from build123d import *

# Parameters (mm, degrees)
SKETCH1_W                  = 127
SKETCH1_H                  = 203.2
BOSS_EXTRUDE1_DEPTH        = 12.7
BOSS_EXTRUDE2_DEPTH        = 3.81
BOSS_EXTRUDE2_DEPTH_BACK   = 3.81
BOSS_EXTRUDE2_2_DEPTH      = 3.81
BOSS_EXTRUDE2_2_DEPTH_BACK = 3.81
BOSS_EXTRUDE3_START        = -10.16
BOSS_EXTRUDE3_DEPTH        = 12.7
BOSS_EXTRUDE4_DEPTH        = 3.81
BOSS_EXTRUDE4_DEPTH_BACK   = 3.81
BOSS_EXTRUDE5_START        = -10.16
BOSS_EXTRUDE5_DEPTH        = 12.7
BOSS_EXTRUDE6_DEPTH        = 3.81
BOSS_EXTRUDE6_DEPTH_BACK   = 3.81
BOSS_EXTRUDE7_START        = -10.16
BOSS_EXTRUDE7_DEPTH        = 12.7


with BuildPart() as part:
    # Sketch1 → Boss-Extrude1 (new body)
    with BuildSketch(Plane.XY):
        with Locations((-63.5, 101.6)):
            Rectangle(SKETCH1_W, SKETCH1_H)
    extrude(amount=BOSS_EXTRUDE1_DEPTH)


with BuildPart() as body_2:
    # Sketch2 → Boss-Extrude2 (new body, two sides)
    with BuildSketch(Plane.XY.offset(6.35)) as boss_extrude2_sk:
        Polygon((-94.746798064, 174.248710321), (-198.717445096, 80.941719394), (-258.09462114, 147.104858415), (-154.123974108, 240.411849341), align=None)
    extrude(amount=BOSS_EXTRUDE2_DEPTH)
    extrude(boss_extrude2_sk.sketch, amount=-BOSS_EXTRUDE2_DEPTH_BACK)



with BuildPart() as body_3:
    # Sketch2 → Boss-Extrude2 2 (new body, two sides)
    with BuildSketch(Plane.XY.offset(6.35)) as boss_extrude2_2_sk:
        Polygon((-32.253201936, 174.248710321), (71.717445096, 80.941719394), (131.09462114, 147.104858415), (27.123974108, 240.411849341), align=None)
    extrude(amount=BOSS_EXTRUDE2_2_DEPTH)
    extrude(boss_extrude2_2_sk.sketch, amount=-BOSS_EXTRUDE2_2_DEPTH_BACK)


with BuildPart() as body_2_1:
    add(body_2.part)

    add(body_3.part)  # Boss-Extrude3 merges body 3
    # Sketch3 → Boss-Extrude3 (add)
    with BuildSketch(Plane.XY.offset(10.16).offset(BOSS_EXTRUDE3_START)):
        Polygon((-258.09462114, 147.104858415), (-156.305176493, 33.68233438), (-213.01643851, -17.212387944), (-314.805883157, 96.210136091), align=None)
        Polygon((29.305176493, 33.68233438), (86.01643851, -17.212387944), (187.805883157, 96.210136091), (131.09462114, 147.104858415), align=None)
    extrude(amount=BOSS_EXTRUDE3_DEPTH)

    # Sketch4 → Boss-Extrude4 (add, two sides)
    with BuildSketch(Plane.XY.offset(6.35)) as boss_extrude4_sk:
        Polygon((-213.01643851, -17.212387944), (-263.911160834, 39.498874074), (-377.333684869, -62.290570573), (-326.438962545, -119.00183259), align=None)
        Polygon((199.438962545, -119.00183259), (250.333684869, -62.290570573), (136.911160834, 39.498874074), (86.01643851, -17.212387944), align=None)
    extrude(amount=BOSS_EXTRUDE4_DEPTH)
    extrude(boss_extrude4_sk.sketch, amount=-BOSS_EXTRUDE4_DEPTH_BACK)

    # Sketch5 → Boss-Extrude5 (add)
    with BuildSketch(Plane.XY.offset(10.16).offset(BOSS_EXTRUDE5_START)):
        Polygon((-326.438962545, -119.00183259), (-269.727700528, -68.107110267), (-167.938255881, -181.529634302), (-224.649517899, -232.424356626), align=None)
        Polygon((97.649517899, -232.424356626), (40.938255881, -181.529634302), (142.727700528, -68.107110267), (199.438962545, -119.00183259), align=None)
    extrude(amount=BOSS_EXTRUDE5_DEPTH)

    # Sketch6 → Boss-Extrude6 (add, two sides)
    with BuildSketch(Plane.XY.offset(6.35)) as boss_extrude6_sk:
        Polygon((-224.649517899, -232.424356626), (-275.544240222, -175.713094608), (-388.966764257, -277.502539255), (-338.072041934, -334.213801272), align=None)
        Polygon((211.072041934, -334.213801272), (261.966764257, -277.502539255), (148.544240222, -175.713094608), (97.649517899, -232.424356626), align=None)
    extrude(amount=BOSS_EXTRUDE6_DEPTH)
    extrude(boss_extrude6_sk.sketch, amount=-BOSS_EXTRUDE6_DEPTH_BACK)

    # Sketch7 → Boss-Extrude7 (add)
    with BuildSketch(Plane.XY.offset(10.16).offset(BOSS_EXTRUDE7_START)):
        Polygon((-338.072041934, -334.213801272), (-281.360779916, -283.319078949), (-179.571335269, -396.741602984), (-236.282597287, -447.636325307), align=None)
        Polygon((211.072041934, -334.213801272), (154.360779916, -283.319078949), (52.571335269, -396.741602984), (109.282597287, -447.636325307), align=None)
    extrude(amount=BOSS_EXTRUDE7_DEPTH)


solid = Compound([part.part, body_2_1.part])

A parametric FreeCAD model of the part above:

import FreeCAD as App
import Part
import Sketcher
Q = App.Units.Quantity

doc = App.newDocument("Part")
body = doc.addObject("PartDesign::Body", "Body")

sketch1 = body.newObject("Sketcher::SketchObject", "Sketch")
sketch1.AttachmentSupport = (doc.getObject("XY_Plane"), [""])
sketch1.MapMode = "FlatFace"
sketch1.addGeometry(Part.LineSegment(App.Vector(-127, 203, 0), App.Vector(-127, 0, 0)), False)
sketch1.addGeometry(Part.LineSegment(App.Vector(-127, 0, 0), App.Vector(0, 0, 0)), False)
sketch1.addGeometry(Part.LineSegment(App.Vector(0, 0, 0), App.Vector(0, 203, 0)), False)
sketch1.addGeometry(Part.LineSegment(App.Vector(0, 203, 0), App.Vector(-127, 203, 0)), False)
sketch1.addConstraint(Sketcher.Constraint("Coincident", 0, 2, 1, 1))
sketch1.addConstraint(Sketcher.Constraint("Coincident", 1, 2, 2, 1))
sketch1.addConstraint(Sketcher.Constraint("Coincident", 2, 2, 3, 1))
sketch1.addConstraint(Sketcher.Constraint("Coincident", 3, 2, 0, 1))
sketch1.addConstraint(Sketcher.Constraint("Vertical", 0))
sketch1.addConstraint(Sketcher.Constraint("Horizontal", 1))
sketch1.addConstraint(Sketcher.Constraint("Vertical", 2))
sketch1.addConstraint(Sketcher.Constraint("Horizontal", 3))
sketch1.addConstraint(Sketcher.Constraint("Coincident", 1, 2, -1, 1))
sketch1.addConstraint(Sketcher.Constraint("DistanceX", 1, 1, 1, 2, Q("5 in")))
sketch1.addConstraint(Sketcher.Constraint("DistanceY", 0, 2, 0, 1, Q("8 in")))
pad1 = body.newObject("PartDesign::Pad", "Pad")
pad1.Profile = sketch1
pad1.Length = Q("0.5 in")
body2 = doc.addObject("PartDesign::Body", "Body001")

sketch2 = body2.newObject("Sketcher::SketchObject", "Sketch001")
sketch2.AttachmentSupport = (doc.getObject("XY_Plane001"), [""])
sketch2.MapMode = "FlatFace"
sketch2.AttachmentOffset = App.Placement(App.Vector(0, 0, 0.25 * 25.4), App.Rotation())
sketch2.addGeometry(Part.LineSegment(App.Vector(-199, 81, 0), App.Vector(-95, 174, 0)), False)
sketch2.addGeometry(Part.LineSegment(App.Vector(-95, 174, 0), App.Vector(-154, 240, 0)), False)
sketch2.addGeometry(Part.LineSegment(App.Vector(-154, 240, 0), App.Vector(-258, 147, 0)), False)
sketch2.addGeometry(Part.LineSegment(App.Vector(-258, 147, 0), App.Vector(-199, 81, 0)), False)
sketch2.addConstraint(Sketcher.Constraint("Coincident", 0, 2, 1, 1))
sketch2.addConstraint(Sketcher.Constraint("Coincident", 1, 2, 2, 1))
sketch2.addConstraint(Sketcher.Constraint("Coincident", 2, 2, 3, 1))
sketch2.addConstraint(Sketcher.Constraint("Coincident", 3, 2, 0, 1))
sketch2.addConstraint(Sketcher.Constraint("Perpendicular", 0, 1))
sketch2.addConstraint(Sketcher.Constraint("Perpendicular", 1, 2))
sketch2.addConstraint(Sketcher.Constraint("Perpendicular", 2, 3))
sketch2.addConstraint(Sketcher.Constraint("Distance", 0, Q("5.5 in")))
sketch2.addConstraint(Sketcher.Constraint("Distance", 1, Q("3.5 in")))
sketch2.addConstraint(Sketcher.Constraint("DistanceX", 0, 2, -1, 1, Q("94.746798 mm")))
sketch2.addConstraint(Sketcher.Constraint("DistanceY", -1, 1, 0, 2, Q("174.24871 mm")))
sketch2.addConstraint(Sketcher.Constraint("DistanceY", -1, 1, 1, 2, Q("240.411849 mm")))
pad2 = body2.newObject("PartDesign::Pad", "Pad001")
pad2.Profile = sketch2
pad2.Type = "TwoLengths"
pad2.Length = Q("0.15 in")
pad2.Length2 = Q("0.15 in")
body3 = doc.addObject("PartDesign::Body", "Body002")

sketch3 = body3.newObject("Sketcher::SketchObject", "Sketch002")
sketch3.AttachmentSupport = (doc.getObject("XY_Plane002"), [""])
sketch3.MapMode = "FlatFace"
sketch3.AttachmentOffset = App.Placement(App.Vector(0, 0, 0.25 * 25.4), App.Rotation())
sketch3.addGeometry(Part.LineSegment(App.Vector(-32, 174, 0), App.Vector(72, 81, 0)), False)
sketch3.addGeometry(Part.LineSegment(App.Vector(72, 81, 0), App.Vector(131, 147, 0)), False)
sketch3.addGeometry(Part.LineSegment(App.Vector(131, 147, 0), App.Vector(27, 240, 0)), False)
sketch3.addGeometry(Part.LineSegment(App.Vector(27, 240, 0), App.Vector(-32, 174, 0)), False)
sketch3.addConstraint(Sketcher.Constraint("Coincident", 0, 2, 1, 1))
sketch3.addConstraint(Sketcher.Constraint("Coincident", 1, 2, 2, 1))
sketch3.addConstraint(Sketcher.Constraint("Coincident", 2, 2, 3, 1))
sketch3.addConstraint(Sketcher.Constraint("Coincident", 3, 2, 0, 1))
sketch3.addConstraint(Sketcher.Constraint("Perpendicular", 0, 1))
sketch3.addConstraint(Sketcher.Constraint("Perpendicular", 1, 2))
sketch3.addConstraint(Sketcher.Constraint("Perpendicular", 2, 3))
sketch3.addConstraint(Sketcher.Constraint("Distance", 0, Q("5.5 in")))
sketch3.addConstraint(Sketcher.Constraint("Distance", 1, Q("3.5 in")))
sketch3.addConstraint(Sketcher.Constraint("DistanceX", 3, 2, -1, 1, Q("32.253202 mm")))
sketch3.addConstraint(Sketcher.Constraint("DistanceY", -1, 1, 0, 2, Q("80.941719 mm")))
sketch3.addConstraint(Sketcher.Constraint("DistanceX", -1, 1, 1, 2, Q("131.094621 mm")))
pad3 = body3.newObject("PartDesign::Pad", "Pad002")
pad3.Profile = sketch3
pad3.Type = "TwoLengths"
pad3.Length = Q("0.15 in")
pad3.Length2 = Q("0.15 in")
body2.AllowCompound = True
doc.recompute()

boolean = body2.newObject("PartDesign::Boolean", "Boolean")
boolean.Type = "Fuse"
boolean.addObjects([body3])

sketch4 = body2.newObject("Sketcher::SketchObject", "Sketch003")
sketch4.AttachmentSupport = (doc.getObject("XY_Plane001"), [""])
sketch4.MapMode = "FlatFace"
sketch4.addGeometry(Part.LineSegment(App.Vector(-156, 34, 0), App.Vector(-258, 147, 0)), False)
sketch4.addGeometry(Part.LineSegment(App.Vector(-258, 147, 0), App.Vector(-315, 96, 0)), False)
sketch4.addGeometry(Part.LineSegment(App.Vector(-315, 96, 0), App.Vector(-213, -17, 0)), False)
sketch4.addGeometry(Part.LineSegment(App.Vector(-213, -17, 0), App.Vector(-156, 34, 0)), False)
sketch4.addGeometry(Part.LineSegment(App.Vector(29, 34, 0), App.Vector(86, -17, 0)), False)
sketch4.addGeometry(Part.LineSegment(App.Vector(86, -17, 0), App.Vector(188, 96, 0)), False)
sketch4.addGeometry(Part.LineSegment(App.Vector(188, 96, 0), App.Vector(131, 147, 0)), False)
sketch4.addGeometry(Part.LineSegment(App.Vector(131, 147, 0), App.Vector(29, 34, 0)), False)
sketch4.addConstraint(Sketcher.Constraint("Coincident", 0, 2, 1, 1))
sketch4.addConstraint(Sketcher.Constraint("Coincident", 1, 2, 2, 1))
sketch4.addConstraint(Sketcher.Constraint("Coincident", 2, 2, 3, 1))
sketch4.addConstraint(Sketcher.Constraint("Coincident", 3, 2, 0, 1))
sketch4.addConstraint(Sketcher.Constraint("Coincident", 4, 2, 5, 1))
sketch4.addConstraint(Sketcher.Constraint("Coincident", 5, 2, 6, 1))
sketch4.addConstraint(Sketcher.Constraint("Coincident", 6, 2, 7, 1))
sketch4.addConstraint(Sketcher.Constraint("Coincident", 7, 2, 4, 1))
sketch4.addConstraint(Sketcher.Constraint("Perpendicular", 0, 1))
sketch4.addConstraint(Sketcher.Constraint("Perpendicular", 1, 2))
sketch4.addConstraint(Sketcher.Constraint("Perpendicular", 2, 3))
sketch4.addConstraint(Sketcher.Constraint("Perpendicular", 4, 5))
sketch4.addConstraint(Sketcher.Constraint("Perpendicular", 5, 6))
sketch4.addConstraint(Sketcher.Constraint("Perpendicular", 6, 7))
sketch4.addConstraint(Sketcher.Constraint("Horizontal", 2, 2, 4, 2))
sketch4.addConstraint(Sketcher.Constraint("Horizontal", 1, 2, 5, 2))
sketch4.addConstraint(Sketcher.Constraint("Horizontal", 0, 2, 6, 2))
sketch4.addConstraint(Sketcher.Constraint("Equal", 3, 4))
sketch4.addConstraint(Sketcher.Constraint("Distance", 0, Q("6 in")))
sketch4.addConstraint(Sketcher.Constraint("Distance", 1, Q("3 in")))
sketch4.addConstraint(Sketcher.Constraint("DistanceY", 3, 2, 1, 2, Q("62.527802 mm")))
sketch4.addConstraint(Sketcher.Constraint("DistanceX", 0, 2, -1, 1, Q("258.094621 mm")))
sketch4.addConstraint(Sketcher.Constraint("DistanceY", -1, 1, 0, 2, Q("147.104858 mm")))
sketch4.addConstraint(Sketcher.Constraint("DistanceX", -1, 1, 4, 2, Q("86.016439 mm")))
pad4 = body2.newObject("PartDesign::Pad", "Pad003")
pad4.Profile = sketch4
pad4.Length = Q("0.5 in")

sketch5 = body2.newObject("Sketcher::SketchObject", "Sketch004")
sketch5.AttachmentSupport = (doc.getObject("XY_Plane001"), [""])
sketch5.MapMode = "FlatFace"
sketch5.AttachmentOffset = App.Placement(App.Vector(0, 0, 0.25 * 25.4), App.Rotation())
sketch5.addGeometry(Part.LineSegment(App.Vector(-213, -17, 0), App.Vector(-264, 39, 0)), False)
sketch5.addGeometry(Part.LineSegment(App.Vector(-264, 39, 0), App.Vector(-377, -62, 0)), False)
sketch5.addGeometry(Part.LineSegment(App.Vector(-377, -62, 0), App.Vector(-326, -119, 0)), False)
sketch5.addGeometry(Part.LineSegment(App.Vector(-326, -119, 0), App.Vector(-213, -17, 0)), False)
sketch5.addGeometry(Part.LineSegment(App.Vector(199, -119, 0), App.Vector(250, -62, 0)), False)
sketch5.addGeometry(Part.LineSegment(App.Vector(250, -62, 0), App.Vector(137, 39, 0)), False)
sketch5.addGeometry(Part.LineSegment(App.Vector(137, 39, 0), App.Vector(86, -17, 0)), False)
sketch5.addGeometry(Part.LineSegment(App.Vector(86, -17, 0), App.Vector(199, -119, 0)), False)
sketch5.addConstraint(Sketcher.Constraint("Coincident", 0, 2, 1, 1))
sketch5.addConstraint(Sketcher.Constraint("Coincident", 1, 2, 2, 1))
sketch5.addConstraint(Sketcher.Constraint("Coincident", 2, 2, 3, 1))
sketch5.addConstraint(Sketcher.Constraint("Coincident", 3, 2, 0, 1))
sketch5.addConstraint(Sketcher.Constraint("Coincident", 4, 2, 5, 1))
sketch5.addConstraint(Sketcher.Constraint("Coincident", 5, 2, 6, 1))
sketch5.addConstraint(Sketcher.Constraint("Coincident", 6, 2, 7, 1))
sketch5.addConstraint(Sketcher.Constraint("Coincident", 7, 2, 4, 1))
sketch5.addConstraint(Sketcher.Constraint("Perpendicular", 0, 1))
sketch5.addConstraint(Sketcher.Constraint("Perpendicular", 1, 2))
sketch5.addConstraint(Sketcher.Constraint("Perpendicular", 2, 3))
sketch5.addConstraint(Sketcher.Constraint("Perpendicular", 4, 5))
sketch5.addConstraint(Sketcher.Constraint("Perpendicular", 5, 6))
sketch5.addConstraint(Sketcher.Constraint("Perpendicular", 6, 7))
sketch5.addConstraint(Sketcher.Constraint("Horizontal", 1, 2, 4, 2))
sketch5.addConstraint(Sketcher.Constraint("Horizontal", 0, 2, 5, 2))
sketch5.addConstraint(Sketcher.Constraint("Horizontal", 3, 2, 6, 2))
sketch5.addConstraint(Sketcher.Constraint("Equal", 2, 4))
sketch5.addConstraint(Sketcher.Constraint("Distance", 0, Q("3 in")))
sketch5.addConstraint(Sketcher.Constraint("Distance", 1, Q("6 in")))
sketch5.addConstraint(Sketcher.Constraint("DistanceX", 2, 2, 0, 2, Q("62.527802 mm")))
sketch5.addConstraint(Sketcher.Constraint("DistanceX", 3, 2, 5, 2, Q("349.927599 mm")))
sketch5.addConstraint(Sketcher.Constraint("DistanceX", 0, 2, -1, 1, Q("263.911161 mm")))
sketch5.addConstraint(Sketcher.Constraint("DistanceY", 1, 2, -1, 1, Q("62.290571 mm")))
pad5 = body2.newObject("PartDesign::Pad", "Pad004")
pad5.Profile = sketch5
pad5.Type = "TwoLengths"
pad5.Length = Q("0.15 in")
pad5.Length2 = Q("0.15 in")

sketch6 = body2.newObject("Sketcher::SketchObject", "Sketch005")
sketch6.AttachmentSupport = (doc.getObject("XY_Plane001"), [""])
sketch6.MapMode = "FlatFace"
sketch6.addGeometry(Part.LineSegment(App.Vector(-270, -68, 0), App.Vector(-326, -119, 0)), False)
sketch6.addGeometry(Part.LineSegment(App.Vector(-326, -119, 0), App.Vector(-225, -232, 0)), False)
sketch6.addGeometry(Part.LineSegment(App.Vector(-225, -232, 0), App.Vector(-168, -182, 0)), False)
sketch6.addGeometry(Part.LineSegment(App.Vector(-168, -182, 0), App.Vector(-270, -68, 0)), False)
sketch6.addGeometry(Part.LineSegment(App.Vector(41, -182, 0), App.Vector(98, -232, 0)), False)
sketch6.addGeometry(Part.LineSegment(App.Vector(98, -232, 0), App.Vector(199, -119, 0)), False)
sketch6.addGeometry(Part.LineSegment(App.Vector(199, -119, 0), App.Vector(143, -68, 0)), False)
sketch6.addGeometry(Part.LineSegment(App.Vector(143, -68, 0), App.Vector(41, -182, 0)), False)
sketch6.addConstraint(Sketcher.Constraint("Coincident", 0, 2, 1, 1))
sketch6.addConstraint(Sketcher.Constraint("Coincident", 1, 2, 2, 1))
sketch6.addConstraint(Sketcher.Constraint("Coincident", 2, 2, 3, 1))
sketch6.addConstraint(Sketcher.Constraint("Coincident", 3, 2, 0, 1))
sketch6.addConstraint(Sketcher.Constraint("Coincident", 4, 2, 5, 1))
sketch6.addConstraint(Sketcher.Constraint("Coincident", 5, 2, 6, 1))
sketch6.addConstraint(Sketcher.Constraint("Coincident", 6, 2, 7, 1))
sketch6.addConstraint(Sketcher.Constraint("Coincident", 7, 2, 4, 1))
sketch6.addConstraint(Sketcher.Constraint("Perpendicular", 0, 1))
sketch6.addConstraint(Sketcher.Constraint("Perpendicular", 1, 2))
sketch6.addConstraint(Sketcher.Constraint("Perpendicular", 2, 3))
sketch6.addConstraint(Sketcher.Constraint("Perpendicular", 4, 5))
sketch6.addConstraint(Sketcher.Constraint("Perpendicular", 5, 6))
sketch6.addConstraint(Sketcher.Constraint("Perpendicular", 6, 7))
sketch6.addConstraint(Sketcher.Constraint("Horizontal", 1, 2, 4, 2))
sketch6.addConstraint(Sketcher.Constraint("Horizontal", 0, 2, 5, 2))
sketch6.addConstraint(Sketcher.Constraint("Horizontal", 3, 2, 6, 2))
sketch6.addConstraint(Sketcher.Constraint("Equal", 2, 4))
sketch6.addConstraint(Sketcher.Constraint("Distance", 0, Q("3 in")))
sketch6.addConstraint(Sketcher.Constraint("Distance", 1, Q("6 in")))
sketch6.addConstraint(Sketcher.Constraint("DistanceX", 3, 2, -1, 1, Q("269.727701 mm")))
sketch6.addConstraint(Sketcher.Constraint("DistanceX", -1, 1, 6, 2, Q("142.727701 mm")))
sketch6.addConstraint(Sketcher.Constraint("DistanceY", 2, 2, 0, 2, Q("62.527802 mm")))
sketch6.addConstraint(Sketcher.Constraint("DistanceY", 3, 2, -1, 1, Q("68.10711 mm")))
pad6 = body2.newObject("PartDesign::Pad", "Pad005")
pad6.Profile = sketch6
pad6.Length = Q("0.5 in")

sketch7 = body2.newObject("Sketcher::SketchObject", "Sketch006")
sketch7.AttachmentSupport = (doc.getObject("XY_Plane001"), [""])
sketch7.MapMode = "FlatFace"
sketch7.AttachmentOffset = App.Placement(App.Vector(0, 0, 0.25 * 25.4), App.Rotation())
sketch7.addGeometry(Part.LineSegment(App.Vector(-225, -232, 0), App.Vector(-276, -176, 0)), False)
sketch7.addGeometry(Part.LineSegment(App.Vector(-276, -176, 0), App.Vector(-389, -278, 0)), False)
sketch7.addGeometry(Part.LineSegment(App.Vector(-389, -278, 0), App.Vector(-338, -334, 0)), False)
sketch7.addGeometry(Part.LineSegment(App.Vector(-338, -334, 0), App.Vector(-225, -232, 0)), False)
sketch7.addGeometry(Part.LineSegment(App.Vector(211, -334, 0), App.Vector(262, -278, 0)), False)
sketch7.addGeometry(Part.LineSegment(App.Vector(262, -278, 0), App.Vector(149, -176, 0)), False)
sketch7.addGeometry(Part.LineSegment(App.Vector(149, -176, 0), App.Vector(98, -232, 0)), False)
sketch7.addGeometry(Part.LineSegment(App.Vector(98, -232, 0), App.Vector(211, -334, 0)), False)
sketch7.addConstraint(Sketcher.Constraint("Coincident", 0, 2, 1, 1))
sketch7.addConstraint(Sketcher.Constraint("Coincident", 1, 2, 2, 1))
sketch7.addConstraint(Sketcher.Constraint("Coincident", 2, 2, 3, 1))
sketch7.addConstraint(Sketcher.Constraint("Coincident", 3, 2, 0, 1))
sketch7.addConstraint(Sketcher.Constraint("Coincident", 4, 2, 5, 1))
sketch7.addConstraint(Sketcher.Constraint("Coincident", 5, 2, 6, 1))
sketch7.addConstraint(Sketcher.Constraint("Coincident", 6, 2, 7, 1))
sketch7.addConstraint(Sketcher.Constraint("Coincident", 7, 2, 4, 1))
sketch7.addConstraint(Sketcher.Constraint("Perpendicular", 0, 1))
sketch7.addConstraint(Sketcher.Constraint("Perpendicular", 1, 2))
sketch7.addConstraint(Sketcher.Constraint("Perpendicular", 2, 3))
sketch7.addConstraint(Sketcher.Constraint("Perpendicular", 4, 5))
sketch7.addConstraint(Sketcher.Constraint("Perpendicular", 5, 6))
sketch7.addConstraint(Sketcher.Constraint("Perpendicular", 6, 7))
sketch7.addConstraint(Sketcher.Constraint("Horizontal", 1, 2, 4, 2))
sketch7.addConstraint(Sketcher.Constraint("Horizontal", 0, 2, 5, 2))
sketch7.addConstraint(Sketcher.Constraint("Horizontal", 3, 2, 6, 2))
sketch7.addConstraint(Sketcher.Constraint("Equal", 2, 4))
sketch7.addConstraint(Sketcher.Constraint("Distance", 0, Q("3 in")))
sketch7.addConstraint(Sketcher.Constraint("Distance", 1, Q("6 in")))
sketch7.addConstraint(Sketcher.Constraint("DistanceY", 2, 2, -1, 1, Q("334.213801 mm")))
sketch7.addConstraint(Sketcher.Constraint("DistanceX", 2, 2, 0, 2, Q("62.527802 mm")))
sketch7.addConstraint(Sketcher.Constraint("DistanceX", 0, 2, -1, 1, Q("275.54424 mm")))
sketch7.addConstraint(Sketcher.Constraint("DistanceX", -1, 1, 5, 2, Q("148.54424 mm")))
pad7 = body2.newObject("PartDesign::Pad", "Pad006")
pad7.Profile = sketch7
pad7.Type = "TwoLengths"
pad7.Length = Q("0.15 in")
pad7.Length2 = Q("0.15 in")

sketch8 = body2.newObject("Sketcher::SketchObject", "Sketch007")
sketch8.AttachmentSupport = (doc.getObject("XY_Plane001"), [""])
sketch8.MapMode = "FlatFace"
sketch8.addGeometry(Part.LineSegment(App.Vector(-281, -283, 0), App.Vector(-338, -334, 0)), False)
sketch8.addGeometry(Part.LineSegment(App.Vector(-338, -334, 0), App.Vector(-236, -448, 0)), False)
sketch8.addGeometry(Part.LineSegment(App.Vector(-236, -448, 0), App.Vector(-180, -397, 0)), False)
sketch8.addGeometry(Part.LineSegment(App.Vector(-180, -397, 0), App.Vector(-281, -283, 0)), False)
sketch8.addGeometry(Part.LineSegment(App.Vector(211, -334, 0), App.Vector(154, -283, 0)), False)
sketch8.addGeometry(Part.LineSegment(App.Vector(154, -283, 0), App.Vector(53, -397, 0)), False)
sketch8.addGeometry(Part.LineSegment(App.Vector(53, -397, 0), App.Vector(109, -448, 0)), False)
sketch8.addGeometry(Part.LineSegment(App.Vector(109, -448, 0), App.Vector(211, -334, 0)), False)
sketch8.addConstraint(Sketcher.Constraint("Coincident", 0, 2, 1, 1))
sketch8.addConstraint(Sketcher.Constraint("Coincident", 1, 2, 2, 1))
sketch8.addConstraint(Sketcher.Constraint("Coincident", 2, 2, 3, 1))
sketch8.addConstraint(Sketcher.Constraint("Coincident", 3, 2, 0, 1))
sketch8.addConstraint(Sketcher.Constraint("Coincident", 4, 2, 5, 1))
sketch8.addConstraint(Sketcher.Constraint("Coincident", 5, 2, 6, 1))
sketch8.addConstraint(Sketcher.Constraint("Coincident", 6, 2, 7, 1))
sketch8.addConstraint(Sketcher.Constraint("Coincident", 7, 2, 4, 1))
sketch8.addConstraint(Sketcher.Constraint("Perpendicular", 0, 1))
sketch8.addConstraint(Sketcher.Constraint("Perpendicular", 1, 2))
sketch8.addConstraint(Sketcher.Constraint("Perpendicular", 2, 3))
sketch8.addConstraint(Sketcher.Constraint("Perpendicular", 4, 5))
sketch8.addConstraint(Sketcher.Constraint("Perpendicular", 5, 6))
sketch8.addConstraint(Sketcher.Constraint("Perpendicular", 6, 7))
sketch8.addConstraint(Sketcher.Constraint("Horizontal", 3, 2, 4, 2))
sketch8.addConstraint(Sketcher.Constraint("Horizontal", 2, 2, 5, 2))
sketch8.addConstraint(Sketcher.Constraint("Horizontal", 1, 2, 6, 2))
sketch8.addConstraint(Sketcher.Constraint("Equal", 2, 4))
sketch8.addConstraint(Sketcher.Constraint("Distance", 0, Q("3 in")))
sketch8.addConstraint(Sketcher.Constraint("Distance", 1, Q("6 in")))
sketch8.addConstraint(Sketcher.Constraint("DistanceY", 0, 2, -1, 1, Q("334.213801 mm")))
sketch8.addConstraint(Sketcher.Constraint("DistanceY", 2, 2, 0, 2, Q("62.527802 mm")))
sketch8.addConstraint(Sketcher.Constraint("DistanceX", 0, 2, -1, 1, Q("338.072042 mm")))
sketch8.addConstraint(Sketcher.Constraint("DistanceX", -1, 1, 4, 2, Q("154.36078 mm")))
pad8 = body2.newObject("PartDesign::Pad", "Pad007")
pad8.Profile = sketch8
pad8.Length = Q("0.5 in")

doc.recompute()
